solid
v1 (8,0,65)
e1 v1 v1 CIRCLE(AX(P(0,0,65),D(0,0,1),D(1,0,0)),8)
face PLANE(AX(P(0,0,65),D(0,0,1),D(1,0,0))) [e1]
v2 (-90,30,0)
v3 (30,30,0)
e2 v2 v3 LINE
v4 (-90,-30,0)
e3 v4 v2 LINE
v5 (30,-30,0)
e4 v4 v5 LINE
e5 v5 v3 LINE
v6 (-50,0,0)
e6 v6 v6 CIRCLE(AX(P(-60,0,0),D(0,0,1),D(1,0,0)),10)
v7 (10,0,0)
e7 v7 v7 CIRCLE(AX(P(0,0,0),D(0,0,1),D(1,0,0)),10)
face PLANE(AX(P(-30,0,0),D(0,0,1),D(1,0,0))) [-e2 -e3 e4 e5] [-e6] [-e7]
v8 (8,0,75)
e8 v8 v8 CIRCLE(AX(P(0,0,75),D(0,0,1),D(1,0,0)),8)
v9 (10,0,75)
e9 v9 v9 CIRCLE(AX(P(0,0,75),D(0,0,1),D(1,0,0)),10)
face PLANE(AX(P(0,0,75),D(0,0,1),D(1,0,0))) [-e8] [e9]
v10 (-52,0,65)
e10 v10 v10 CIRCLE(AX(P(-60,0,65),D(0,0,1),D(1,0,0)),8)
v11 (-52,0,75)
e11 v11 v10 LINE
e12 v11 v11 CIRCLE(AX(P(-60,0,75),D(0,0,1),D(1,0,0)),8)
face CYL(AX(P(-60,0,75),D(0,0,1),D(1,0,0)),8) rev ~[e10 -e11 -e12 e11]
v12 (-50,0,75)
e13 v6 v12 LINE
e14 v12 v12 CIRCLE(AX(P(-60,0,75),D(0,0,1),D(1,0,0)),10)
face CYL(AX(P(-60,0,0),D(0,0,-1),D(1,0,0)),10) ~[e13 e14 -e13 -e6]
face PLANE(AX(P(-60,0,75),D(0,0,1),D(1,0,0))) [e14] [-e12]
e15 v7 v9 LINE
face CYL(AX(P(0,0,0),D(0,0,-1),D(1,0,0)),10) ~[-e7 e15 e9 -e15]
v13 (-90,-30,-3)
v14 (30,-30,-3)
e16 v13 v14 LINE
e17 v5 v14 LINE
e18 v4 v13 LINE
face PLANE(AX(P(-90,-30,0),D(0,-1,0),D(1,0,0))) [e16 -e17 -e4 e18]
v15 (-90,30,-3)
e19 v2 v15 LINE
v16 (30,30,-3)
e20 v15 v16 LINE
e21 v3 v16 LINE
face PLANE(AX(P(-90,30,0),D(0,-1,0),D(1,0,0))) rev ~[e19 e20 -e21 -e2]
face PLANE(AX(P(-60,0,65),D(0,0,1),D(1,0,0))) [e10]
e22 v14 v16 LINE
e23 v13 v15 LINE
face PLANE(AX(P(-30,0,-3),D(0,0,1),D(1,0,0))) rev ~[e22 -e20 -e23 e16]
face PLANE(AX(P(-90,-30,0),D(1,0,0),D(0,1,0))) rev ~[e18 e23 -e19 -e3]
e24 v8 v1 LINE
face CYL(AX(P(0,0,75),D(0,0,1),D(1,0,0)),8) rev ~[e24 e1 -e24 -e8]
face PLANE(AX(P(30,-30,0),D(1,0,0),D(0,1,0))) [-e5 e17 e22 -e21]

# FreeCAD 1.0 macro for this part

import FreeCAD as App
import Part
import Sketcher
from FreeCAD import Vector

doc = App.newDocument("Part")
params = doc.addObject("Spreadsheet::Sheet", "Params")
for row, (alias, value) in enumerate([
    ("sketch1_width", "120 mm"),
    ("sketch1_height", "60 mm"),
    ("pad1_length", "3 mm"),
    ("sketch2_diameter", "20 mm"),
    ("pad2_length", "75 mm"),
    ("sketch3_diameter", "16 mm"),
    ("pocket1_length", "10 mm"),
], start=1):
    params.set(f"A{row}", alias)
    params.set(f"B{row}", "=" + value)
    params.setAlias(f"B{row}", alias)

body = doc.addObject("PartDesign::Body", "Body")

sketch1 = body.newObject("Sketcher::SketchObject", "Sketch")
sketch1.AttachmentSupport = (doc.getObject("XY_Plane"), [""])
sketch1.MapMode = "FlatFace"
sketch1.addGeometry([
    Part.LineSegment(Vector(-90, 30, 0), Vector(-90, -30, 0)),
    Part.LineSegment(Vector(-90, -30, 0), Vector(30, -30, 0)),
    Part.LineSegment(Vector(30, -30, 0), Vector(30, 30, 0)),
    Part.LineSegment(Vector(30, 30, 0), Vector(-90, 30, 0)),
], False)
sketch1.addConstraint([
    Sketcher.Constraint("Coincident", 0, 2, 1, 1),
    Sketcher.Constraint("Coincident", 1, 2, 2, 1),
    Sketcher.Constraint("Coincident", 2, 2, 3, 1),
    Sketcher.Constraint("Coincident", 3, 2, 0, 1),
    Sketcher.Constraint("Vertical", 0),
    Sketcher.Constraint("Horizontal", 1),
    Sketcher.Constraint("Vertical", 2),
    Sketcher.Constraint("Horizontal", 3),
    Sketcher.Constraint("DistanceX", 1, 1, 1, 2, 120.0),
    Sketcher.Constraint("DistanceY", 0, 2, 0, 1, 60.0),
    Sketcher.Constraint("DistanceX", 0, 2, -1, 1, 90.0),
    Sketcher.Constraint("DistanceY", 0, 2, -1, 1, 30.0),
])
sketch1.setExpression("Constraints[8]", "Params.sketch1_width")
sketch1.setExpression("Constraints[9]", "Params.sketch1_height")
pad1 = body.newObject("PartDesign::Pad", "Pad")
pad1.Profile = sketch1
pad1.setExpression("Length", "Params.pad1_length")
pad1.Reversed = True

sketch2 = body.newObject("Sketcher::SketchObject", "Sketch001")
sketch2.AttachmentSupport = (doc.getObject("XY_Plane"), [""])
sketch2.MapMode = "FlatFace"
sketch2.addGeometry([
    Part.Circle(Vector(-60, 0, 0), Vector(0, 0, 1), 10),
    Part.Circle(Vector(0, 0, 0), Vector(0, 0, 1), 10),
], False)
sketch2.addConstraint([
    Sketcher.Constraint("Coincident", 1, 3, -1, 1),
    Sketcher.Constraint("Equal", 0, 1),
    Sketcher.Constraint("PointOnObject", 0, 3, -1),
    Sketcher.Constraint("Diameter", 0, 20.0),
    Sketcher.Constraint("DistanceX", 0, 3, -1, 1, 60.0),
])
sketch2.setExpression("Constraints[3]", "Params.sketch2_diameter")
pad2 = body.newObject("PartDesign::Pad", "Pad001")
pad2.Profile = sketch2
pad2.setExpression("Length", "Params.pad2_length")

sketch3 = body.newObject("Sketcher::SketchObject", "Sketch002")
sketch3.AttachmentSupport = (doc.getObject("XY_Plane"), [""])
sketch3.MapMode = "FlatFace"
sketch3.AttachmentOffset = App.Placement(Vector(0, 0, 75), App.Rotation())
sketch3.addGeometry([
    Part.Circle(Vector(-60, 0, 0), Vector(0, 0, 1), 8),
    Part.Circle(Vector(0, 0, 0), Vector(0, 0, 1), 8),
], False)
sketch3.addConstraint([
    Sketcher.Constraint("Coincident", 1, 3, -1, 1),
    Sketcher.Constraint("Equal", 0, 1),
    Sketcher.Constraint("PointOnObject", 0, 3, -1),
    Sketcher.Constraint("Diameter", 0, 16.0),
    Sketcher.Constraint("DistanceX", 0, 3, -1, 1, 60.0),
])
sketch3.setExpression("Constraints[3]", "Params.sketch3_diameter")
pocket1 = body.newObject("PartDesign::Pocket", "Pocket")
pocket1.Profile = sketch3
pocket1.setExpression("Length", "Params.pocket1_length")

doc.recompute()
